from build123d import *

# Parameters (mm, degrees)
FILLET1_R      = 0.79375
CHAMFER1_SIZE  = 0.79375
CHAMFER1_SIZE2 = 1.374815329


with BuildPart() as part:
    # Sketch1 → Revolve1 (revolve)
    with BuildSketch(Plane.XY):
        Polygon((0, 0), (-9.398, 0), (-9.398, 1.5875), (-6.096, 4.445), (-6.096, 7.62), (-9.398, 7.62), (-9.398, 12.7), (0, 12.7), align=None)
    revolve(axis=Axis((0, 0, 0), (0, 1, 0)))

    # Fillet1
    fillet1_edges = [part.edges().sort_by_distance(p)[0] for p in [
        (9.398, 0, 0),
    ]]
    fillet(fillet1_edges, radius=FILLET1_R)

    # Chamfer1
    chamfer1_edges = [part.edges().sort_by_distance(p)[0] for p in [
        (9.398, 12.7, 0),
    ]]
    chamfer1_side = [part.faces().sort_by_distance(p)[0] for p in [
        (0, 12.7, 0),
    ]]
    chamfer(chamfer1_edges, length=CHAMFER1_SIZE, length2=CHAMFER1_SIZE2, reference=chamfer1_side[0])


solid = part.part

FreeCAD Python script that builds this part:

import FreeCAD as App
import Part
import Sketcher
from FreeCAD import Vector
Q = App.Units.Quantity


def edges_at(feature, points):
    """Names of the edges that pass closest to the given points."""
    edges = feature.Shape.Edges
    near = lambda p: min(range(len(edges)), key=lambda i: edges[i].distToShape(Part.Vertex(*p))[0])
    return sorted({f"Edge{near(p) + 1}" for p in points})


def add_polygon(sketch, points):
    """Adds a closed chain of lines whose ends are joined by coincident constraints."""
    first, n = sketch.GeometryCount, len(points)
    for a, b in zip(points, points[1:] + points[:1]):
        sketch.addGeometry(Part.LineSegment(App.Vector(*a, 0), App.Vector(*b, 0)), False)
    for i in range(n):
        sketch.addConstraint(Sketcher.Constraint("Coincident", first + i, 2, first + (i + 1) % n, 1))

doc = App.newDocument("Part")
body = doc.addObject("PartDesign::Body", "Body")

sketch1 = body.newObject("Sketcher::SketchObject", "Sketch")
sketch1.AttachmentSupport = (doc.getObject("XY_Plane"), [""])
sketch1.MapMode = "FlatFace"
add_polygon(sketch1, [(-9.4, 0), (0, 0), (0, 12.7), (-9.4, 12.7), (-9.4, 7.6), (-6.1, 7.6), (-6.1, 4.4), (-9.4, 1.6)])
sketch1.addConstraint([
    Sketcher.Constraint("Horizontal", 0),
    Sketcher.Constraint("Vertical", 1),
    Sketcher.Constraint("Horizontal", 2),
    Sketcher.Constraint("Vertical", 3),
    Sketcher.Constraint("Horizontal", 4),
    Sketcher.Constraint("Vertical", 5),
    Sketcher.Constraint("Vertical", 7),
    Sketcher.Constraint("Coincident", 0, 2, -1, 1),
    Sketcher.Constraint("Vertical", 3, 2, 6, 2),
    Sketcher.Constraint("DistanceY", 1, 1, 1, 2, Q("0.5 in")),
    Sketcher.Constraint("DistanceY", 3, 2, 3, 1, Q("0.2 in")),
    Sketcher.Constraint("DistanceX", 0, 1, 0, 2, Q("0.37 in")),
    Sketcher.Constraint("DistanceX", 4, 1, 4, 2, Q("0.13 in")),
    Sketcher.Constraint("DistanceY", 5, 2, 5, 1, Q("0.125 in")),
    Sketcher.Constraint("DistanceY", 7, 2, 7, 1, Q("0.0625 in")),
])
revolution = body.newObject("PartDesign::Revolution", "Revolution")
revolution.Profile = sketch1
revolution.ReferenceAxis = (sketch1, ["V_Axis"])
revolution.Angle = 360
doc.recompute()

fillet = body.newObject("PartDesign::Fillet", "Fillet")
fillet.Base = (revolution, edges_at(revolution, [(9.398, 0, 0)]))
fillet.Radius = Q("0.03125 in")
doc.recompute()

chamfer = body.newObject("PartDesign::Chamfer", "Chamfer")
chamfer.Base = (fillet, edges_at(fillet, [(9.398, 12.7, 0)]))
chamfer.ChamferType = "Two distances"
chamfer.Size = Q("0.03125 in")
chamfer.Size2 = 1.374815
chamfer.FlipDirection = True

doc.recompute()
